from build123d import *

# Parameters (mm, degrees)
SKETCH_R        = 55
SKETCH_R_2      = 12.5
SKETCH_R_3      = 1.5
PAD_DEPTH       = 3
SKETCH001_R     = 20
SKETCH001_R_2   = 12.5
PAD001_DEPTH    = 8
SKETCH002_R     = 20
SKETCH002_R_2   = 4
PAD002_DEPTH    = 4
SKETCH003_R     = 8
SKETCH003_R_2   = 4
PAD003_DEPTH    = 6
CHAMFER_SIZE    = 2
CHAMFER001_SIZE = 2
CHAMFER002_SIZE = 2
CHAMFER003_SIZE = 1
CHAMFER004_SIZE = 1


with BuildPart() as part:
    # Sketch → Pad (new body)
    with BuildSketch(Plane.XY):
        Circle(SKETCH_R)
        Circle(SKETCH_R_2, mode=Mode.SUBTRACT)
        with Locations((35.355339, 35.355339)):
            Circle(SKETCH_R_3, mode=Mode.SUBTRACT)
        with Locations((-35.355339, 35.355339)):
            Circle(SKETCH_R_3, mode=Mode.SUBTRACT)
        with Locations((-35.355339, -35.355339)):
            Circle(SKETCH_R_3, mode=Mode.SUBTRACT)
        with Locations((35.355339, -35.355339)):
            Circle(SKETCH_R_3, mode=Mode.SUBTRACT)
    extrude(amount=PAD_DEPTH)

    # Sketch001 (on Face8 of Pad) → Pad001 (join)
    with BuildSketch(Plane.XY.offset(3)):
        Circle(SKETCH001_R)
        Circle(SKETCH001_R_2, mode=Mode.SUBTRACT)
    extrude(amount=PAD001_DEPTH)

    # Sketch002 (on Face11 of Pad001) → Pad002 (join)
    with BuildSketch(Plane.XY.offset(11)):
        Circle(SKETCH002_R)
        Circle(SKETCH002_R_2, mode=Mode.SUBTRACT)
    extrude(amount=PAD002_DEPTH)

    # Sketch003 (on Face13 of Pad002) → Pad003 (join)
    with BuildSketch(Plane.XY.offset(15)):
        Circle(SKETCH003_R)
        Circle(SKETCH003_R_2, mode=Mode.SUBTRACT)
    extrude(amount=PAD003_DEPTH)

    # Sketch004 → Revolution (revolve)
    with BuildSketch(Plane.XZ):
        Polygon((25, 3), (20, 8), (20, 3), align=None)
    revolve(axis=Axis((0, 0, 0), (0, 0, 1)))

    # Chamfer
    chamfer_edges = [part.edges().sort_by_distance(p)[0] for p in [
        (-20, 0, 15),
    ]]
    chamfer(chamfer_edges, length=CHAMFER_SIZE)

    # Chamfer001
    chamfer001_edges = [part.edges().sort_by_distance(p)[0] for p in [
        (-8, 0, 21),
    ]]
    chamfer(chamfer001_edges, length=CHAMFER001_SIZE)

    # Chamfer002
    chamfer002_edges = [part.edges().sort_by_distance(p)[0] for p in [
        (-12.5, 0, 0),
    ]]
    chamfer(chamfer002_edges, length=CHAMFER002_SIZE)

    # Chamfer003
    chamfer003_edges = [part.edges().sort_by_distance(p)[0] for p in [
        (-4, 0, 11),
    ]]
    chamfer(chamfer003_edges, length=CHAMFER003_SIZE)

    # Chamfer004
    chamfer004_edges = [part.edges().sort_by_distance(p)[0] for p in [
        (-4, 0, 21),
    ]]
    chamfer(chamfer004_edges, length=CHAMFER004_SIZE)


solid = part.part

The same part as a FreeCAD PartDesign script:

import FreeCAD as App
import Part
import Sketcher

V = App.Vector
Q = App.Units.Quantity


def edges_at(feature, points):
    """Names of the edges that pass closest to the given points."""
    edges = feature.Shape.Edges
    near = lambda p: min(range(len(edges)), key=lambda i: edges[i].distToShape(Part.Vertex(*p))[0])
    return sorted({f"Edge{near(p) + 1}" for p in points})


def add_polygon(sketch, points):
    """Adds a closed chain of lines whose ends are joined by coincident constraints."""
    first, n = sketch.GeometryCount, len(points)
    for a, b in zip(points, points[1:] + points[:1]):
        sketch.addGeometry(Part.LineSegment(App.Vector(*a, 0), App.Vector(*b, 0)), False)
    for i in range(n):
        sketch.addConstraint(Sketcher.Constraint("Coincident", first + i, 2, first + (i + 1) % n, 1))

doc = App.newDocument("Part")
body = doc.addObject("PartDesign::Body", "Body")

# Sketch on XY plane
sketch1 = body.newObject("Sketcher::SketchObject", "Sketch")
sketch1.AttachmentSupport = (doc.getObject("XY_Plane"), [""])
sketch1.MapMode = "FlatFace"
sketch1.addGeometry([
    Part.Circle(V(0, 0, 0), V(0, 0, 1), 55),  # 0
    Part.Circle(V(-35.355339, -35.355339, 0), V(0, 0, 1), 1.5),  # 1
    Part.Circle(V(35.355339, -35.355339, 0), V(0, 0, 1), 1.5),  # 2
    Part.Circle(V(-35.355339, 35.355339, 0), V(0, 0, 1), 1.5),  # 3
    Part.Circle(V(0, 0, 0), V(0, 0, 1), 12.5),  # 4
    Part.Circle(V(35.355339, 35.355339, 0), V(0, 0, 1), 1.5),  # 5
], False)
sketch1.addConstraint([
    Sketcher.Constraint("Coincident", 0, 3, -1, 1),
    Sketcher.Constraint("Coincident", 4, 3, -1, 1),
    Sketcher.Constraint("Equal", 1, 2),
    Sketcher.Constraint("Equal", 2, 3),
    Sketcher.Constraint("Equal", 3, 5),
    Sketcher.Constraint("Symmetric", 2, 3, 3, 3, -1, 1),
    Sketcher.Constraint("Symmetric", 1, 3, 5, 3, -1, 1),
    Sketcher.Constraint("Symmetric", 1, 3, 2, 3, -2),
    Sketcher.Constraint("Diameter", 0, Q("110 mm")),
    Sketcher.Constraint("Diameter", 1, Q("3 mm")),
    Sketcher.Constraint("Diameter", 4, Q("25 mm")),
    Sketcher.Constraint("DistanceX", 1, 3, -1, 1, Q("35.355339 mm")),
    Sketcher.Constraint("DistanceY", 1, 3, -1, 1, Q("35.355339 mm")),
])
pad1 = body.newObject("PartDesign::Pad", "Pad")
pad1.Profile = sketch1
pad1.Length = 3

# Sketch on XY plane
sketch2 = body.newObject("Sketcher::SketchObject", "Sketch001")
sketch2.AttachmentSupport = (doc.getObject("XY_Plane"), [""])
sketch2.MapMode = "FlatFace"
sketch2.AttachmentOffset = App.Placement(V(0, 0, 3), App.Rotation())
sketch2.addGeometry([
    Part.Circle(V(0, 0, 0), V(0, 0, 1), 20),
    Part.Circle(V(0, 0, 0), V(0, 0, 1), 12.5),
], False)
sketch2.addConstraint([
    Sketcher.Constraint("Coincident", 0, 3, -1, 1),
    Sketcher.Constraint("Coincident", 1, 3, -1, 1),
    Sketcher.Constraint("Diameter", 0, Q("40 mm")),
    Sketcher.Constraint("Diameter", 1, Q("25 mm")),
])
pad2 = body.newObject("PartDesign::Pad", "Pad001")
pad2.Profile = sketch2
pad2.Length = 8

# Sketch on XY plane
sketch3 = body.newObject("Sketcher::SketchObject", "Sketch002")
sketch3.AttachmentSupport = (doc.getObject("XY_Plane"), [""])
sketch3.MapMode = "FlatFace"
sketch3.AttachmentOffset = App.Placement(V(0, 0, 11), App.Rotation())
sketch3.addGeometry([
    Part.Circle(V(0, 0, 0), V(0, 0, 1), 20),
    Part.Circle(V(0, 0, 0), V(0, 0, 1), 4),
], False)
sketch3.addConstraint([
    Sketcher.Constraint("Coincident", 0, 3, -1, 1),
    Sketcher.Constraint("Coincident", 1, 3, -1, 1),
    Sketcher.Constraint("Diameter", 0, Q("40 mm")),
    Sketcher.Constraint("Diameter", 1, Q("8 mm")),
])
pad3 = body.newObject("PartDesign::Pad", "Pad002")
pad3.Profile = sketch3
pad3.Length = 4

# Sketch on XY plane
sketch4 = body.newObject("Sketcher::SketchObject", "Sketch003")
sketch4.AttachmentSupport = (doc.getObject("XY_Plane"), [""])
sketch4.MapMode = "FlatFace"
sketch4.AttachmentOffset = App.Placement(V(0, 0, 15), App.Rotation())
sketch4.addGeometry([
    Part.Circle(V(0, 0, 0), V(0, 0, 1), 8),
    Part.Circle(V(0, 0, 0), V(0, 0, 1), 4),
], False)
sketch4.addConstraint([
    Sketcher.Constraint("Coincident", 0, 3, -1, 1),
    Sketcher.Constraint("Coincident", 1, 3, -1, 1),
    Sketcher.Constraint("Diameter", 0, Q("16 mm")),
    Sketcher.Constraint("Diameter", 1, Q("8 mm")),
])
pad4 = body.newObject("PartDesign::Pad", "Pad003")
pad4.Profile = sketch4
pad4.Length = 6

# Sketch on XZ plane
sketch5 = body.newObject("Sketcher::SketchObject", "Sketch004")
sketch5.AttachmentSupport = (doc.getObject("XZ_Plane"), [""])
sketch5.MapMode = "FlatFace"
add_polygon(sketch5, [(25, 3), (20, 8), (20, 3)])  # lines 0-2
sketch5.addConstraint([
    Sketcher.Constraint("Vertical", 1),
    Sketcher.Constraint("Horizontal", 2),
    Sketcher.Constraint("Equal", 2, 1),
    Sketcher.Constraint("DistanceX", 2, 1, 2, 2, Q("5 mm")),
    Sketcher.Constraint("DistanceX", -1, 1, 0, 2, Q("20 mm")),
    Sketcher.Constraint("DistanceY", -1, 1, 0, 2, Q("8 mm")),
])
revolution = body.newObject("PartDesign::Revolution", "Revolution")
revolution.Profile = sketch5
revolution.ReferenceAxis = (sketch5, ["V_Axis"])
revolution.Angle = 360
doc.recompute()

chamfer = body.newObject("PartDesign::Chamfer", "Chamfer")
chamfer.Base = (revolution, edges_at(revolution, [(-20, 0, 15)]))
chamfer.Size = 2
doc.recompute()

chamfer2 = body.newObject("PartDesign::Chamfer", "Chamfer001")
chamfer2.Base = (chamfer, edges_at(chamfer, [(-8, 0, 21)]))
chamfer2.Size = 2
doc.recompute()

chamfer3 = body.newObject("PartDesign::Chamfer", "Chamfer002")
chamfer3.Base = (chamfer2, edges_at(chamfer2, [(-12.5, 0, 0)]))
chamfer3.Size = 2
doc.recompute()

chamfer4 = body.newObject("PartDesign::Chamfer", "Chamfer003")
chamfer4.Base = (chamfer3, edges_at(chamfer3, [(-4, 0, 11)]))
chamfer4.Size = 1
doc.recompute()

chamfer5 = body.newObject("PartDesign::Chamfer", "Chamfer004")
chamfer5.Base = (chamfer4, edges_at(chamfer4, [(-4, 0, 21)]))
chamfer5.Size = 1

doc.recompute()
